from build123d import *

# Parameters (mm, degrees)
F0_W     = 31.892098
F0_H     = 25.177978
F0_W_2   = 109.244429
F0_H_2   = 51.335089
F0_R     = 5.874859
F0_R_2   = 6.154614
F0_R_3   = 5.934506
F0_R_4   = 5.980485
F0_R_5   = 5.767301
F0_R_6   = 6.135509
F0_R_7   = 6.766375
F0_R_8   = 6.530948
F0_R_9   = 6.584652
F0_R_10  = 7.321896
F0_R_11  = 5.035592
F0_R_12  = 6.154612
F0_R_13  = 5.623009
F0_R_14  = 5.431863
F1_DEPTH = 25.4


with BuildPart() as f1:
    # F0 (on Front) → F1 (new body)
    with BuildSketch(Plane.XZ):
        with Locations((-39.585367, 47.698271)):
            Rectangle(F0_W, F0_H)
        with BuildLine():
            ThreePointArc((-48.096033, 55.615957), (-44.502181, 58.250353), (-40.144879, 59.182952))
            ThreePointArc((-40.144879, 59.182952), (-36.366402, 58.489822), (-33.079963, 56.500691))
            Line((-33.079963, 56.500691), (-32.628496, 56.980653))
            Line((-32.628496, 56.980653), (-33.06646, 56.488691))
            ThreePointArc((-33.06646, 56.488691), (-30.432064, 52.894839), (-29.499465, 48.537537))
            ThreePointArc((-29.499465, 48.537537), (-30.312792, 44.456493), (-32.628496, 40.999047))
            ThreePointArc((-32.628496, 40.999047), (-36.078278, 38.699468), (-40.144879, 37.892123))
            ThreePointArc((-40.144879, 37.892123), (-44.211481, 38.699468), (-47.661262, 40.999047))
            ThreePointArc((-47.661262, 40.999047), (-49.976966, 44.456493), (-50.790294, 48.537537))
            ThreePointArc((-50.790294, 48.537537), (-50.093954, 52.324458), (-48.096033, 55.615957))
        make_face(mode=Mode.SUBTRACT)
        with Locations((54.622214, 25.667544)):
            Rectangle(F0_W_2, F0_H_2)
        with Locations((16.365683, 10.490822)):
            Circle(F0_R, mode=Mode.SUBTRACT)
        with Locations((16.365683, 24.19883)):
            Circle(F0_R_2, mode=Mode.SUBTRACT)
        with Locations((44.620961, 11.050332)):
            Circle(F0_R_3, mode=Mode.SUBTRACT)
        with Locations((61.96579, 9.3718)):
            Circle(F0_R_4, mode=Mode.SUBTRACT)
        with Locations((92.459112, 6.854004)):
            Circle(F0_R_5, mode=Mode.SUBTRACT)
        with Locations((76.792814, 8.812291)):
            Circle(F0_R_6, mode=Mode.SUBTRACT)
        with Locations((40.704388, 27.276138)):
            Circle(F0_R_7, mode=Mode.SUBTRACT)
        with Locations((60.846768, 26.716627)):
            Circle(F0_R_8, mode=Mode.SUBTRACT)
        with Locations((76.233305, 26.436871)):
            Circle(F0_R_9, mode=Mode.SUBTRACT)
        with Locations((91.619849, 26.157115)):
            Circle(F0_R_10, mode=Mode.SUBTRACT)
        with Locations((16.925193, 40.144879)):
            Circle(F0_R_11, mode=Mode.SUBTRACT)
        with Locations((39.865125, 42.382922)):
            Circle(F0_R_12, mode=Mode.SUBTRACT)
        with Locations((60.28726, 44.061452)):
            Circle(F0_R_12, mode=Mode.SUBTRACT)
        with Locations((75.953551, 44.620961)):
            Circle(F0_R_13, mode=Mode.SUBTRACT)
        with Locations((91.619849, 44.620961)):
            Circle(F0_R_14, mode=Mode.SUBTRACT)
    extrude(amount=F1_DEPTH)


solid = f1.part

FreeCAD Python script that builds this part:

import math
import FreeCAD as App
import Part
import Sketcher

V = App.Vector
Q = App.Units.Quantity

doc = App.newDocument("Part")
body = doc.addObject("PartDesign::Body", "Body")
body.AllowCompound = True

# Sketch on XZ plane
sketch1 = doc.addObject("Sketcher::SketchObject", "Sketch")
body.addObject(sketch1)
sketch1.AttachmentSupport = (doc.XZ_Plane, [""])
sketch1.MapMode = "FlatFace"
sketch1.addGeometry([
    Part.LineSegment(V(-55.5, 60.3, 0), V(-55.5, 35.1, 0)),  # 0
    Part.LineSegment(V(-55.5, 35.1, 0), V(-23.6, 35.1, 0)),  # 1
    Part.LineSegment(V(-23.6, 35.1, 0), V(-23.6, 60.3, 0)),  # 2
    Part.LineSegment(V(-23.6, 60.3, 0), V(-55.5, 60.3, 0)),  # 3
    Part.ArcOfCircle(Part.Circle(V(-40.1, 48.5, 0), V(0, 0, 1), 10.6), math.radians(138), math.radians(180)),  # 4
    Part.ArcOfCircle(Part.Circle(V(-40.1, 48.5, 0), V(0, 0, 1), 10.6), math.radians(90), math.radians(138)),  # 5
    Part.ArcOfCircle(Part.Circle(V(-40.1, 48.5, 0), V(0, 0, 1), 10.6), math.radians(48), math.radians(90)),  # 6
    Part.LineSegment(V(-33.1, 56.5, 0), V(-32.6, 57, 0)),  # 7
    Part.LineSegment(V(-32.6, 57, 0), V(-33.1, 56.5, 0)),  # 8
    Part.ArcOfCircle(Part.Circle(V(-40.1, 48.5, 0), V(0, 0, 1), 10.6), math.radians(0), math.radians(48)),  # 9
    Part.ArcOfCircle(Part.Circle(V(-40.1, 48.5, 0), V(0, 0, 1), 10.6), math.radians(-45), math.radians(0)),  # 10
    Part.ArcOfCircle(Part.Circle(V(-40.1, 48.5, 0), V(0, 0, 1), 10.6), math.radians(-90), math.radians(-45)),  # 11
    Part.ArcOfCircle(Part.Circle(V(-40.1, 48.5, 0), V(0, 0, 1), 10.6), math.radians(-135), math.radians(-90)),  # 12
    Part.ArcOfCircle(Part.Circle(V(-40.1, 48.5, 0), V(0, 0, 1), 10.6), math.radians(-180), math.radians(-135)),  # 13
    Part.LineSegment(V(0, 51.3, 0), V(0, 0, 0)),  # 14
    Part.LineSegment(V(0, 0, 0), V(109.2, 0, 0)),  # 15
    Part.LineSegment(V(109.2, 0, 0), V(109.2, 51.3, 0)),  # 16
    Part.LineSegment(V(109.2, 51.3, 0), V(0, 51.3, 0)),  # 17
    Part.Circle(V(16.4, 10.5, 0), V(0, 0, 1), 5.9),  # 18
    Part.Circle(V(44.6, 11.1, 0), V(0, 0, 1), 5.9),  # 19
    Part.Circle(V(16.4, 24.2, 0), V(0, 0, 1), 6.2),  # 20
    Part.Circle(V(62, 9.4, 0), V(0, 0, 1), 6),  # 21
    Part.Circle(V(92.5, 6.9, 0), V(0, 0, 1), 5.8),  # 22
    Part.Circle(V(76.8, 8.8, 0), V(0, 0, 1), 6.1),  # 23
    Part.Circle(V(40.7, 27.3, 0), V(0, 0, 1), 6.8),  # 24
    Part.Circle(V(16.9, 40.1, 0), V(0, 0, 1), 5),  # 25
    Part.Circle(V(39.9, 42.4, 0), V(0, 0, 1), 6.2),  # 26
    Part.Circle(V(60.8, 26.7, 0), V(0, 0, 1), 6.5),  # 27
    Part.Circle(V(76.2, 26.4, 0), V(0, 0, 1), 6.6),  # 28
    Part.Circle(V(91.6, 26.2, 0), V(0, 0, 1), 7.3),  # 29
    Part.Circle(V(60.3, 44.1, 0), V(0, 0, 1), 6.2),  # 30
    Part.Circle(V(76, 44.6, 0), V(0, 0, 1), 5.6),  # 31
    Part.Circle(V(91.6, 44.6, 0), V(0, 0, 1), 5.4),  # 32
], False)
sketch1.addConstraint([
    Sketcher.Constraint("Coincident", 0, 2, 1, 1),
    Sketcher.Constraint("Coincident", 1, 2, 2, 1),
    Sketcher.Constraint("Coincident", 2, 2, 3, 1),
    Sketcher.Constraint("Coincident", 3, 2, 0, 1),
    Sketcher.Constraint("Tangent", 4, 1, 5, 2),
    Sketcher.Constraint("Tangent", 5, 1, 6, 2),
    Sketcher.Constraint("Coincident", 6, 1, 7, 1),
    Sketcher.Constraint("Coincident", 7, 2, 8, 1),
    Sketcher.Constraint("Coincident", 8, 2, 9, 2),
    Sketcher.Constraint("Tangent", 9, 1, 10, 2),
    Sketcher.Constraint("Tangent", 10, 1, 11, 2),
    Sketcher.Constraint("Tangent", 11, 1, 12, 2),
    Sketcher.Constraint("Tangent", 12, 1, 13, 2),
    Sketcher.Constraint("Tangent", 13, 1, 4, 2),
    Sketcher.Constraint("Coincident", 14, 2, 15, 1),
    Sketcher.Constraint("Coincident", 15, 2, 16, 1),
    Sketcher.Constraint("Coincident", 16, 2, 17, 1),
    Sketcher.Constraint("Coincident", 17, 2, 14, 1),
    Sketcher.Constraint("Vertical", 0),
    Sketcher.Constraint("Horizontal", 1),
    Sketcher.Constraint("Vertical", 2),
    Sketcher.Constraint("Horizontal", 3),
    Sketcher.Constraint("Vertical", 14),
    Sketcher.Constraint("Horizontal", 15),
    Sketcher.Constraint("Vertical", 16),
    Sketcher.Constraint("Horizontal", 17),
    Sketcher.Constraint("Coincident", 14, 2, -1, 1),
    Sketcher.Constraint("Coincident", 6, 3, 4, 3),
    Sketcher.Constraint("Coincident", 9, 3, 4, 3),
    Sketcher.Constraint("Coincident", 11, 3, 4, 3),
    Sketcher.Constraint("Equal", 6, 9),
    Sketcher.Constraint("Equal", 20, 26),
    Sketcher.Constraint("Equal", 26, 30),
    Sketcher.Constraint("Horizontal", 31, 3, 32, 3),
    Sketcher.Constraint("Horizontal", 13, 3, 9, 1),
    Sketcher.Constraint("Horizontal", 10, 1, 12, 1),
    Sketcher.Constraint("Horizontal", 9, 1, 13, 1),
    Sketcher.Constraint("Vertical", 18, 3, 20, 3),
    Sketcher.Constraint("Vertical", 29, 3, 32, 3),
    Sketcher.Constraint("Vertical", 13, 3, 5, 1),
    Sketcher.Constraint("Vertical", 7, 2, 10, 1),
    Sketcher.Constraint("Vertical", 5, 1, 11, 1),
    Sketcher.Constraint("Diameter", 21, Q("11.96097 mm")),
    Sketcher.Constraint("Diameter", 24, Q("13.53275 mm")),
    Sketcher.Constraint("Radius", 4, Q("10.64542 mm")),
    Sketcher.Constraint("Diameter", 18, Q("11.749718 mm")),
    Sketcher.Constraint("Diameter", 19, Q("11.869012 mm")),
    Sketcher.Constraint("Diameter", 20, Q("12.309228 mm")),
    Sketcher.Constraint("Diameter", 22, Q("11.534602 mm")),
    Sketcher.Constraint("Diameter", 23, Q("12.271018 mm")),
    Sketcher.Constraint("Diameter", 25, Q("10.071184 mm")),
    Sketcher.Constraint("Diameter", 27, Q("13.061896 mm")),
    Sketcher.Constraint("Diameter", 28, Q("13.169304 mm")),
    Sketcher.Constraint("Diameter", 29, Q("14.643792 mm")),
    Sketcher.Constraint("Diameter", 31, Q("11.246018 mm")),
    Sketcher.Constraint("Diameter", 32, Q("10.863726 mm")),
    Sketcher.Constraint("DistanceX", 1, 1, 1, 2, Q("31.892098 mm")),
    Sketcher.Constraint("DistanceX", 15, 1, 15, 2, Q("109.244429 mm")),
    Sketcher.Constraint("DistanceY", 0, 2, 0, 1, Q("25.177978 mm")),
    Sketcher.Constraint("DistanceY", 14, 2, 14, 1, Q("51.335089 mm")),
    Sketcher.Constraint("DistanceY", -1, 1, 21, 3, Q("9.3718 mm")),
    Sketcher.Constraint("DistanceY", 19, 3, 10, 3, Q("37.487202 mm")),
    Sketcher.Constraint("DistanceY", 19, 3, 20, 3, Q("13.148498 mm")),
    Sketcher.Constraint("DistanceX", 24, 3, 21, 3, Q("21.261402 mm")),
    Sketcher.Constraint("DistanceY", 18, 3, 26, 3, Q("31.8921 mm")),
    Sketcher.Constraint("DistanceY", 7, 2, 5, 1, Q("2.202299 mm")),
    Sketcher.Constraint("DistanceY", 8, 2, 6, 1, Q("0.012 mm")),
    Sketcher.Constraint("DistanceX", 5, 3, -1, 1, Q("40.144881 mm")),
    Sketcher.Constraint("DistanceY", -1, 1, 5, 3, Q("48.537539 mm")),
    Sketcher.Constraint("DistanceX", -1, 1, 19, 3, Q("44.620961 mm")),
    Sketcher.Constraint("DistanceX", -1, 1, 21, 3, Q("61.96579 mm")),
    Sketcher.Constraint("DistanceY", -1, 1, 23, 3, Q("8.812291 mm")),
    Sketcher.Constraint("DistanceY", -1, 1, 25, 3, Q("40.144879 mm")),
    Sketcher.Constraint("DistanceY", -1, 1, 28, 3, Q("26.436871 mm")),
    Sketcher.Constraint("DistanceX", -1, 1, 29, 3, Q("91.619849 mm")),
    Sketcher.Constraint("DistanceX", -1, 1, 30, 3, Q("60.28726 mm")),
    Sketcher.Constraint("DistanceX", -1, 1, 31, 3, Q("75.953551 mm")),
    Sketcher.Constraint("DistanceY", -1, 1, 31, 3, Q("44.620961 mm")),
    Sketcher.Constraint("DistanceY", -1, 1, 2, 2, Q("60.28726 mm")),
    Sketcher.Constraint("DistanceY", -1, 1, 6, 1, Q("56.500691 mm")),
    Sketcher.Constraint("DistanceX", 12, 1, -1, 1, Q("47.661262 mm")),
    Sketcher.Constraint("DistanceY", 18, 3, 10, 3, Q("38.046712 mm")),
    Sketcher.Constraint("DistanceX", 11, 3, 18, 3, Q("56.510561 mm")),
    Sketcher.Constraint("DistanceX", 19, 3, 22, 3, Q("47.838151 mm")),
    Sketcher.Constraint("DistanceY", 22, 3, 10, 3, Q("41.68353 mm")),
    Sketcher.Constraint("DistanceX", 18, 3, 23, 3, Q("60.427131 mm")),
    Sketcher.Constraint("DistanceX", 20, 3, 25, 3, Q("0.55951 mm")),
    Sketcher.Constraint("DistanceY", 24, 3, 25, 3, Q("12.868741 mm")),
    Sketcher.Constraint("DistanceX", 25, 3, 26, 3, Q("22.939932 mm")),
    Sketcher.Constraint("DistanceX", 24, 3, 27, 3, Q("20.14238 mm")),
    Sketcher.Constraint("DistanceY", 27, 3, 24, 3, Q("0.559511 mm")),
    Sketcher.Constraint("DistanceX", 28, 3, 23, 3, Q("0.559509 mm")),
    Sketcher.Constraint("DistanceY", 22, 3, 29, 3, Q("19.303111 mm")),
    Sketcher.Constraint("DistanceY", 26, 3, 30, 3, Q("1.67853 mm")),
    Sketcher.Constraint("DistanceX", 0, 2, 11, 3, Q("15.386538 mm")),
    Sketcher.Constraint("DistanceX", 4, 1, 5, 3, Q("7.951152 mm")),
])
pad1 = doc.addObject("PartDesign::Pad", "Pad")
body.addObject(pad1)
pad1.Profile = sketch1
pad1.Length = Q("1 in")

doc.recompute()
